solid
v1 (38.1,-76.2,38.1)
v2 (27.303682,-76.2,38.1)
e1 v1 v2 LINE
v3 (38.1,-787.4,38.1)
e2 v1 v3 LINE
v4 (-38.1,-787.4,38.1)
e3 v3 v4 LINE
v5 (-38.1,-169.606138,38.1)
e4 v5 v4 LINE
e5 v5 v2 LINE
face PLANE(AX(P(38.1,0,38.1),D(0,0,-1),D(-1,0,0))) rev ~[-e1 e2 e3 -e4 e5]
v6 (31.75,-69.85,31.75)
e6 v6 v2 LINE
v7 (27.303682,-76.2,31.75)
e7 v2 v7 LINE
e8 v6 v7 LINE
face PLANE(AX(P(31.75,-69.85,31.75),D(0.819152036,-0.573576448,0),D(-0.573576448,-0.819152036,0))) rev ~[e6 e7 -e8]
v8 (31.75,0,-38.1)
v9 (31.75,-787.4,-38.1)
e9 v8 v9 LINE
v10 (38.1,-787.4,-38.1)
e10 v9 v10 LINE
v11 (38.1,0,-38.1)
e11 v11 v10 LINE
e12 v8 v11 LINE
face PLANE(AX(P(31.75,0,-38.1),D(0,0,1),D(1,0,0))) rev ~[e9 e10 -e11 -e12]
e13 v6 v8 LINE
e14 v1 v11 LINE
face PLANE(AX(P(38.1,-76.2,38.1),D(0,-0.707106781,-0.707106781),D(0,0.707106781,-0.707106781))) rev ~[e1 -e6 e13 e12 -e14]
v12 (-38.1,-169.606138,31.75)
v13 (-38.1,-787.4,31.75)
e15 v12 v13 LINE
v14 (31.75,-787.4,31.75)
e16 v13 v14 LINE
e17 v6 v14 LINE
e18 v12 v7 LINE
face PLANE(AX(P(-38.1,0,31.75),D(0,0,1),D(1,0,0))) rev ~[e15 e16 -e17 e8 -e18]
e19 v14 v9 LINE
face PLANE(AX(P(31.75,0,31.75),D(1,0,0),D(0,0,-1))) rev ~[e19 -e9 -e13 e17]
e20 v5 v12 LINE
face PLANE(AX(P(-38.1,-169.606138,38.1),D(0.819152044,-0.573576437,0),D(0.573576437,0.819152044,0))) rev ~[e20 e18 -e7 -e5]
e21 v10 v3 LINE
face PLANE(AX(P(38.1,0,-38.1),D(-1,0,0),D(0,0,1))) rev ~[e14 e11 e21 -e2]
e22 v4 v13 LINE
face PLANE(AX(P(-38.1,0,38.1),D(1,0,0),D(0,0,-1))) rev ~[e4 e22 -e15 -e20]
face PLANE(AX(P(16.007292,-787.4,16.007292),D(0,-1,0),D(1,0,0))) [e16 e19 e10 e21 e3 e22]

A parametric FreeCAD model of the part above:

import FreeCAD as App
import Part
import Sketcher
Q = App.Units.Quantity


def add_polygon(sketch, points):
    """Adds a closed chain of lines whose ends are joined by coincident constraints."""
    first, n = sketch.GeometryCount, len(points)
    for a, b in zip(points, points[1:] + points[:1]):
        sketch.addGeometry(Part.LineSegment(App.Vector(*a, 0), App.Vector(*b, 0)), False)
    for i in range(n):
        sketch.addConstraint(Sketcher.Constraint("Coincident", first + i, 2, first + (i + 1) % n, 1))

doc = App.newDocument("Part")
body = doc.addObject("PartDesign::Body", "Body")

# Sketch on XZ plane
sketch1 = body.newObject("Sketcher::SketchObject", "Sketch")
sketch1.AttachmentSupport = (doc.getObject("XZ_Plane"), [""])
sketch1.MapMode = "FlatFace"
add_polygon(sketch1, [(32, -38), (38, -38), (38, 38), (-38, 38), (-38, 32), (32, 32)])  # lines 0-5
sketch1.addConstraint([
    Sketcher.Constraint("Horizontal", 0),
    Sketcher.Constraint("Vertical", 1),
    Sketcher.Constraint("Horizontal", 2),
    Sketcher.Constraint("Vertical", 3),
    Sketcher.Constraint("Horizontal", 4),
    Sketcher.Constraint("Vertical", 5),
    Sketcher.Constraint("Symmetric", 0, 2, 2, 2, -1, 1),
    Sketcher.Constraint("Equal", 2, 1),
    Sketcher.Constraint("Equal", 0, 3),
    Sketcher.Constraint("DistanceX", 2, 2, 2, 1, Q("3 in")),
    Sketcher.Constraint("DistanceX", 0, 1, 0, 2, Q("0.25 in")),
])
pad1 = body.newObject("PartDesign::Pad", "Pad")
pad1.Profile = sketch1
pad1.Length = Q("31 in")

# Sketch on YZ plane
sketch2 = body.newObject("Sketcher::SketchObject", "Sketch001")
sketch2.AttachmentSupport = (doc.getObject("YZ_Plane"), [""])
sketch2.MapMode = "FlatFace"
sketch2.AttachmentOffset = App.Placement(App.Vector(0, 0, 1.5 * 25.4), App.Rotation())
add_polygon(sketch2, [(-76, 38), (0, -38), (0, 38)])  # lines 0-2
sketch2.addConstraint([
    Sketcher.Constraint("Vertical", 1),
    Sketcher.Constraint("Horizontal", 2),
    Sketcher.Constraint("Symmetric", 0, 2, 1, 2, -1, 1),
    Sketcher.Constraint("Equal", 2, 1),
    Sketcher.Constraint("DistanceX", 2, 2, 2, 1, Q("3 in")),
])
pocket1 = body.newObject("PartDesign::Pocket", "Pocket")
pocket1.Profile = sketch2
pocket1.Length = Q("3 in")

# Sketch on XY plane
sketch3 = body.newObject("Sketcher::SketchObject", "Sketch002")
sketch3.AttachmentSupport = (doc.getObject("XY_Plane"), [""])
sketch3.MapMode = "FlatFace"
sketch3.AttachmentOffset = App.Placement(App.Vector(0, 0, 1.5 * 25.4), App.Rotation())
add_polygon(sketch3, [(-38, -170), (27, -76), (-38, -76)])  # lines 0-2
sketch3.addConstraint([
    Sketcher.Constraint("Horizontal", 1),
    Sketcher.Constraint("Vertical", 2),
    Sketcher.Constraint("DistanceY", 0, 2, -1, 1, Q("3 in")),
    Sketcher.Constraint("Angle", 0, Q("55 deg")),
    Sketcher.Constraint("DistanceX", 1, 2, -1, 1, Q("1.5 in")),
    Sketcher.Constraint("Distance", 0, Q("114.02784 mm")),
])
pocket2 = body.newObject("PartDesign::Pocket", "Pocket001")
pocket2.Profile = sketch3
pocket2.Length = Q("1 in")

# Sketch on XY plane
sketch4 = body.newObject("Sketcher::SketchObject", "Sketch003")
sketch4.AttachmentSupport = (doc.getObject("XY_Plane"), [""])
sketch4.MapMode = "FlatFace"
sketch4.AttachmentOffset = App.Placement(App.Vector(0, 0, 1.25 * 25.4), App.Rotation())
add_polygon(sketch4, [(-38, -70), (32, -70), (27, -76), (-38, -76)])  # lines 0-3
sketch4.addConstraint([
    Sketcher.Constraint("Horizontal", 0),
    Sketcher.Constraint("Horizontal", 2),
    Sketcher.Constraint("Vertical", 3),
    Sketcher.Constraint("DistanceY", 1, 2, -1, 1, Q("3 in")),
    Sketcher.Constraint("Angle", 1, Q("-125.000001 deg")),
    Sketcher.Constraint("DistanceX", 0, 1, 0, 2, Q("2.75 in")),
    Sketcher.Constraint("DistanceY", 3, 1, 3, 2, Q("0.25 in")),
    Sketcher.Constraint("DistanceX", 2, 2, -1, 1, Q("1.5 in")),
])
pocket3 = body.newObject("PartDesign::Pocket", "Pocket002")
pocket3.Profile = sketch4
pocket3.Length = Q("1 in")
pocket3.Reversed = True

doc.recompute()
